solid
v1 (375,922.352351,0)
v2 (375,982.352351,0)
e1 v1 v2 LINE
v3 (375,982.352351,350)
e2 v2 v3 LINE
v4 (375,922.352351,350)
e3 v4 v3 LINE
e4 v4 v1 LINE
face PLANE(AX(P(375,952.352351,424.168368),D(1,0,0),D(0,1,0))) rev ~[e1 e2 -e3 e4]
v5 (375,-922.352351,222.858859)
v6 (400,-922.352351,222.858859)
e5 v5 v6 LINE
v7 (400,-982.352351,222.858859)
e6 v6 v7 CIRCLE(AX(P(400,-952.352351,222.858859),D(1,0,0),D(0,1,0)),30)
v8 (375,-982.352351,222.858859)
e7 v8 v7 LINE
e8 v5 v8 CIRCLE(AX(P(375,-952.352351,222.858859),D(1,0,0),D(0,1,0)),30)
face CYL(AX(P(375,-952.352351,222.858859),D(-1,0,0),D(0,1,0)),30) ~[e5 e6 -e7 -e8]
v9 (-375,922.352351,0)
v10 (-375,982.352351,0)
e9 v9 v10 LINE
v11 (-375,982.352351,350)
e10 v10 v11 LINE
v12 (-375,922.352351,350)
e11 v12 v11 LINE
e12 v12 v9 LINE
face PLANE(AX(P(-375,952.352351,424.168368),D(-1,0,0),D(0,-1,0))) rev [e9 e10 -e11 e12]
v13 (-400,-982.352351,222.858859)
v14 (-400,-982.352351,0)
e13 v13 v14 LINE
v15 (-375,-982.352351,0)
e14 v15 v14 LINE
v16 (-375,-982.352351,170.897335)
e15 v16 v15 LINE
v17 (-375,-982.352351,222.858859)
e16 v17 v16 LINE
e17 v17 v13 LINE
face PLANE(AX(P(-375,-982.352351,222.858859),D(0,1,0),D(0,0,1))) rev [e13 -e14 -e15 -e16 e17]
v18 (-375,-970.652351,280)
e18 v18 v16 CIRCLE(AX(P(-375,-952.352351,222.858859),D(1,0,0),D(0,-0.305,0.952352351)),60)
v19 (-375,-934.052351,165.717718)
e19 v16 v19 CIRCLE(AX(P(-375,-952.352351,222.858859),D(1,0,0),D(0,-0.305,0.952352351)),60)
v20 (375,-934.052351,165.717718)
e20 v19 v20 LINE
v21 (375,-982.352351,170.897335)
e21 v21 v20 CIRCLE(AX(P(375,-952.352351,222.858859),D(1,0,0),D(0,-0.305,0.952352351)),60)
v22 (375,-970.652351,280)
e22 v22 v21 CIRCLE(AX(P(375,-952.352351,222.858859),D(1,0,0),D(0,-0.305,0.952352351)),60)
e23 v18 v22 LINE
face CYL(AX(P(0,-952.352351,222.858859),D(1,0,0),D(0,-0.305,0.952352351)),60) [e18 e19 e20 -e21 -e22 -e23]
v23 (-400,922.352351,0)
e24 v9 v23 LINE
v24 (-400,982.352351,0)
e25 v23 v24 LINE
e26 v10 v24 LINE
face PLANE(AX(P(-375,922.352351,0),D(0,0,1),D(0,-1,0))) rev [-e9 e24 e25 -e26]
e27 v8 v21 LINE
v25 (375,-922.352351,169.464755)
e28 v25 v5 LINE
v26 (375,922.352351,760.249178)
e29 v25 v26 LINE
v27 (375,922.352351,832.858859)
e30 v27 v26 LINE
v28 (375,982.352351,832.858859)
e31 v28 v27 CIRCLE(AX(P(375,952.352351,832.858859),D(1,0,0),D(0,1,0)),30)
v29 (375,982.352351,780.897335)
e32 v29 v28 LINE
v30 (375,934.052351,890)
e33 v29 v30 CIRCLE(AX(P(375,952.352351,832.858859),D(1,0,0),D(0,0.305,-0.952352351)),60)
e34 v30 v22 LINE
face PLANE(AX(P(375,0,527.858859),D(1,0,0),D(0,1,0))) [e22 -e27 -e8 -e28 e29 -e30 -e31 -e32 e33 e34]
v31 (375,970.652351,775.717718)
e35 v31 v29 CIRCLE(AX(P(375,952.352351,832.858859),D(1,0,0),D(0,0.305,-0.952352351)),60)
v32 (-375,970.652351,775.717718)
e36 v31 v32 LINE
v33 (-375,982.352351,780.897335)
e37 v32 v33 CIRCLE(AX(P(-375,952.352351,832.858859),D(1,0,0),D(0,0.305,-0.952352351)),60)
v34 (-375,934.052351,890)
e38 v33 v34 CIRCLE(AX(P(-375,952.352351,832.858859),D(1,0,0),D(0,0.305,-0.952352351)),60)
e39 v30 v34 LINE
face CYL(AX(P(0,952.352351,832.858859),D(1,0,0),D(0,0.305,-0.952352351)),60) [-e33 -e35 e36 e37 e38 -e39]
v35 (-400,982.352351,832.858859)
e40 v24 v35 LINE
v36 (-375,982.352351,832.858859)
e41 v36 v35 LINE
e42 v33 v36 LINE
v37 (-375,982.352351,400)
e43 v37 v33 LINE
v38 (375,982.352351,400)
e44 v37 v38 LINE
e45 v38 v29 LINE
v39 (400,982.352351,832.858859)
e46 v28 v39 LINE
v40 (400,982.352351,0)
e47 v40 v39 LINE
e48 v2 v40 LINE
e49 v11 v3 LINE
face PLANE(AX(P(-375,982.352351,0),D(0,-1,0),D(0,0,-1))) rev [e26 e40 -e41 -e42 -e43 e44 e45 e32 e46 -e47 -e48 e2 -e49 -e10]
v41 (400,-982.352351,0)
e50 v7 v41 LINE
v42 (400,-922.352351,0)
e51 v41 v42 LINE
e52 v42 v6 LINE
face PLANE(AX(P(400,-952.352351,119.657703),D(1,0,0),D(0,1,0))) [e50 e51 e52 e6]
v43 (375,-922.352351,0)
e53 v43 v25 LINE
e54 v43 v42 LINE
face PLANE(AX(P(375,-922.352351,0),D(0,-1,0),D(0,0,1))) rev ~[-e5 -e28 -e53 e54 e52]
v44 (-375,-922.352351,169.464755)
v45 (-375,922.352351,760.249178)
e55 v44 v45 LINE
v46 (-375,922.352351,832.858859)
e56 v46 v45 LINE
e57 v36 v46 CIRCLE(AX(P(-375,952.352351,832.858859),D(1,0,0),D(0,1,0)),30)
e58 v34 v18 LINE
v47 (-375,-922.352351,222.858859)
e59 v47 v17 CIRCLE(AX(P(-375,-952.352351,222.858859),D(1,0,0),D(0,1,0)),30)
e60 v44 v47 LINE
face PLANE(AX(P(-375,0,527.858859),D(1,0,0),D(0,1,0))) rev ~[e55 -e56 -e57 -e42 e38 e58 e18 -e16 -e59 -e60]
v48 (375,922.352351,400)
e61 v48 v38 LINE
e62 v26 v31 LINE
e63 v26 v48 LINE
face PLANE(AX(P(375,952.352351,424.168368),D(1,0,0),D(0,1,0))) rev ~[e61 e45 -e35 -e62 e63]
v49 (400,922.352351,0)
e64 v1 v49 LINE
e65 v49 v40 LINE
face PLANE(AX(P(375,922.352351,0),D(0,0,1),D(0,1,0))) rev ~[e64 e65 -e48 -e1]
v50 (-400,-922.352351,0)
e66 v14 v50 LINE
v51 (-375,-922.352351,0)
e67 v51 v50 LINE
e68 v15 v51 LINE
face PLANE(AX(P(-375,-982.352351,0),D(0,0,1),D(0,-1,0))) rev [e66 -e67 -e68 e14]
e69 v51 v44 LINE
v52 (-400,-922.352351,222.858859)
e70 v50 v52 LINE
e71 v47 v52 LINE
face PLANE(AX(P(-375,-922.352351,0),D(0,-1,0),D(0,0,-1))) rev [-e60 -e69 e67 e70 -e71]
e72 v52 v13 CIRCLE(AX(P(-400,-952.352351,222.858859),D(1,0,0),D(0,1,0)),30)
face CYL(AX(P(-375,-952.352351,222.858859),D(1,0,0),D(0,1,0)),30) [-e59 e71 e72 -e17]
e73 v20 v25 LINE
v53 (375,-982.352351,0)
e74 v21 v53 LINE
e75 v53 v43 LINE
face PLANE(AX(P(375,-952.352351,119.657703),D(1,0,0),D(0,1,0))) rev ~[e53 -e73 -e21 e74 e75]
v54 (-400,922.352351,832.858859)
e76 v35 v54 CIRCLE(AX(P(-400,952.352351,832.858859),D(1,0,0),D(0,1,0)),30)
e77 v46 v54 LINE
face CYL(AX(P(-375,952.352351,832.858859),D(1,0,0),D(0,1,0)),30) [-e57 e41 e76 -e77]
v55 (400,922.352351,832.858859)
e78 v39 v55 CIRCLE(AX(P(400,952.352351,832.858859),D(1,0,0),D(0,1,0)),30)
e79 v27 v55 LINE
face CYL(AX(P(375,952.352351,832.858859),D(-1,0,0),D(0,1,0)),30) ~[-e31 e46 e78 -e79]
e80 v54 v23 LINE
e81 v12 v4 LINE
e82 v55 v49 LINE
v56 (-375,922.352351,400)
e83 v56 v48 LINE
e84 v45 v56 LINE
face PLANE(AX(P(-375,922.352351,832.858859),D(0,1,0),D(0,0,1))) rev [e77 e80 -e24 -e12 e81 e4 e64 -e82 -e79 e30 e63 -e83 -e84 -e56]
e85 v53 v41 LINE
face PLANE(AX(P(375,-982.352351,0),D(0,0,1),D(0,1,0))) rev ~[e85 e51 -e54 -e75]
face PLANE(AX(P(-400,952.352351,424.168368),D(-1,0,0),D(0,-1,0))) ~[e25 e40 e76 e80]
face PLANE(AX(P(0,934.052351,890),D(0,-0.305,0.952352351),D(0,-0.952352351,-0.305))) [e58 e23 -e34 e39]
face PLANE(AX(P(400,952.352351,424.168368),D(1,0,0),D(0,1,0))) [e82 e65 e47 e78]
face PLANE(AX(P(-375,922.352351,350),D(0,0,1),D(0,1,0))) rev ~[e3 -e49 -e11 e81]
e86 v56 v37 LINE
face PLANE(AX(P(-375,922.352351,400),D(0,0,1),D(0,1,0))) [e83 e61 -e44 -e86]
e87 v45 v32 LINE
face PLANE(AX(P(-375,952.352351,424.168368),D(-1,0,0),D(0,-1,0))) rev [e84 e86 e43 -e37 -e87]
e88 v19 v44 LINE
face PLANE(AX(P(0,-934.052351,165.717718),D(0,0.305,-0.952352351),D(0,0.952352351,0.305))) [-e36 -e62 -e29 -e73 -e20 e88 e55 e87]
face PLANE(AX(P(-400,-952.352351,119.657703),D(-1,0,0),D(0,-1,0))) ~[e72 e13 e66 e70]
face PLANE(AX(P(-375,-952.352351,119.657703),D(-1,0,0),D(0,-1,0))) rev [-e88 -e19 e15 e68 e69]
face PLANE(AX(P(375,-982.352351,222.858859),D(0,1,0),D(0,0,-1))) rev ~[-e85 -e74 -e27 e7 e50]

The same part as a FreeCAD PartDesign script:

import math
import FreeCAD as App
import Part
import Sketcher
from FreeCAD import Vector
Q = App.Units.Quantity

doc = App.newDocument("Part")
body = doc.addObject("PartDesign::Body", "Body")

# Sketch on YZ plane
sketch1 = doc.addObject("Sketcher::SketchObject", "Sketch")
body.addObject(sketch1)
sketch1.AttachmentSupport = (doc.YZ_Plane, [""])
sketch1.MapMode = "FlatFace"
sketch1.addGeometry([
    Part.LineSegment(Vector(934, 890, 0), Vector(-971, 280, 0)),
    Part.ArcOfCircle(Part.Circle(Vector(-952, 223, 0), Vector(0, 0, 1), 60), math.radians(108), math.radians(288)),
    Part.LineSegment(Vector(-934, 166, 0), Vector(971, 776, 0)),
    Part.ArcOfCircle(Part.Circle(Vector(952, 833, 0), Vector(0, 0, 1), 60), math.radians(-72), math.radians(108)),
], False)
sketch1.addConstraint([
    Sketcher.Constraint("Tangent", 0, 2, 1, 1),
    Sketcher.Constraint("Tangent", 1, 2, 2, 1),
    Sketcher.Constraint("Tangent", 2, 2, 3, 1),
    Sketcher.Constraint("Tangent", 3, 2, 0, 1),
    Sketcher.Constraint("Equal", 1, 3),
    Sketcher.Constraint("Radius", 1, Q("60 mm")),
    Sketcher.Constraint("Distance", 0, Q("2000 mm")),
    Sketcher.Constraint("DistanceY", -1, 1, 0, 2, Q("280 mm")),
    Sketcher.Constraint("DistanceY", -1, 1, 3, 2, Q("890 mm")),
    Sketcher.Constraint("DistanceX", 1, 3, -1, 1, Q("952.352351 mm")),
])
pad1 = doc.addObject("PartDesign::Pad", "Pad")
body.addObject(pad1)
pad1.Profile = sketch1
pad1.Length = 750
pad1.Midplane = True

# Sketch on YZ plane
sketch2 = doc.addObject("Sketcher::SketchObject", "Sketch001")
body.addObject(sketch2)
sketch2.AttachmentSupport = (doc.YZ_Plane, [""])
sketch2.MapMode = "FlatFace"
sketch2.AttachmentOffset = App.Placement(Vector(0, 0, 375), App.Rotation())
sketch2.addGeometry([
    Part.LineSegment(Vector(-982, 223, 0), Vector(-982, 0, 0)),  # 0
    Part.LineSegment(Vector(-982, 0, 0), Vector(-922, 0, 0)),  # 1
    Part.LineSegment(Vector(-922, 0, 0), Vector(-922, 223, 0)),  # 2
    Part.ArcOfCircle(Part.Circle(Vector(-952, 223, 0), Vector(0, 0, 1), 30), math.radians(0), math.radians(180)),  # 3
    Part.LineSegment(Vector(922, 833, 0), Vector(922, 0, 0)),  # 4
    Part.LineSegment(Vector(922, 0, 0), Vector(982, 0, 0)),  # 5
    Part.LineSegment(Vector(982, 0, 0), Vector(982, 833, 0)),  # 6
    Part.ArcOfCircle(Part.Circle(Vector(952, 833, 0), Vector(0, 0, 1), 30), math.radians(0), math.radians(180)),  # 7
], False)
sketch2.addConstraint([
    Sketcher.Constraint("Coincident", 0, 2, 1, 1),
    Sketcher.Constraint("Coincident", 1, 2, 2, 1),
    Sketcher.Constraint("Tangent", 2, 2, 3, 1),
    Sketcher.Constraint("Tangent", 3, 2, 0, 1),
    Sketcher.Constraint("Coincident", 4, 2, 5, 1),
    Sketcher.Constraint("Coincident", 5, 2, 6, 1),
    Sketcher.Constraint("Tangent", 6, 2, 7, 1),
    Sketcher.Constraint("Tangent", 7, 2, 4, 1),
    Sketcher.Constraint("Vertical", 0),
    Sketcher.Constraint("Horizontal", 1),
    Sketcher.Constraint("Vertical", 2),
    Sketcher.Constraint("Vertical", 4),
    Sketcher.Constraint("Horizontal", 5),
    Sketcher.Constraint("Vertical", 6),
    Sketcher.Constraint("Equal", 3, 7),
    Sketcher.Constraint("Symmetric", 1, 2, 4, 2, -1, 1),
    Sketcher.Constraint("PointOnObject", 0, 2, -1),
    Sketcher.Constraint("Radius", 3, Q("30 mm")),
    Sketcher.Constraint("DistanceY", 3, 3, 7, 3, Q("610 mm")),
    Sketcher.Constraint("DistanceY", 0, 2, 0, 1, Q("222.858859 mm")),
    Sketcher.Constraint("DistanceX", 3, 3, 7, 3, Q("1904.704702 mm")),
])
pad2 = doc.addObject("PartDesign::Pad", "Pad001")
body.addObject(pad2)
pad2.Profile = sketch2
pad2.Length = 25
body2 = doc.addObject("PartDesign::Body", "Body001")
doc.recompute()

body2.BaseFeature = body
doc.recompute()

mirroring = doc.addObject("Part::Mirroring", "Mirroring")
mirroring.Source = body
mirroring.Base = Vector(0, 0, 0)
mirroring.Normal = Vector(1, 0, 0)
body3 = doc.addObject("PartDesign::Body", "Body002")
body3.BaseFeature = mirroring
boolean = doc.addObject("PartDesign::Boolean", "Boolean")
body2.addObject(boolean)
boolean.Type = "Fuse"
boolean.addObjects([body3])
doc.recompute()

# Sketch on YZ plane
sketch3 = doc.addObject("Sketcher::SketchObject", "Sketch002")
body2.addObject(sketch3)
sketch3.AttachmentSupport = (doc.getObject("YZ_Plane001"), [""])
sketch3.MapMode = "FlatFace"
sketch3.AttachmentOffset = App.Placement(Vector(0, 0, -375), App.Rotation())
sketch3.addGeometry([
    Part.LineSegment(Vector(922, 400, 0), Vector(922, 350, 0)),
    Part.LineSegment(Vector(922, 350, 0), Vector(982, 350, 0)),
    Part.LineSegment(Vector(982, 350, 0), Vector(982, 400, 0)),
    Part.LineSegment(Vector(982, 400, 0), Vector(922, 400, 0)),
], False)
sketch3.addConstraint([
    Sketcher.Constraint("Coincident", 0, 2, 1, 1),
    Sketcher.Constraint("Coincident", 1, 2, 2, 1),
    Sketcher.Constraint("Coincident", 2, 2, 3, 1),
    Sketcher.Constraint("Coincident", 3, 2, 0, 1),
    Sketcher.Constraint("Vertical", 0),
    Sketcher.Constraint("Horizontal", 1),
    Sketcher.Constraint("Vertical", 2),
    Sketcher.Constraint("Horizontal", 3),
    Sketcher.Constraint("DistanceX", 1, 1, 1, 2, Q("60 mm")),
    Sketcher.Constraint("DistanceY", 0, 2, 0, 1, Q("50 mm")),
    Sketcher.Constraint("DistanceY", -1, 1, 0, 2, Q("350 mm")),
    Sketcher.Constraint("DistanceX", -1, 1, 0, 2, Q("922.352351 mm")),
])
pad3 = doc.addObject("PartDesign::Pad", "Pad002")
body2.addObject(pad3)
pad3.Profile = sketch3
pad3.Type = "UpToLast"
mirroring.Visibility = False

doc.recompute()
